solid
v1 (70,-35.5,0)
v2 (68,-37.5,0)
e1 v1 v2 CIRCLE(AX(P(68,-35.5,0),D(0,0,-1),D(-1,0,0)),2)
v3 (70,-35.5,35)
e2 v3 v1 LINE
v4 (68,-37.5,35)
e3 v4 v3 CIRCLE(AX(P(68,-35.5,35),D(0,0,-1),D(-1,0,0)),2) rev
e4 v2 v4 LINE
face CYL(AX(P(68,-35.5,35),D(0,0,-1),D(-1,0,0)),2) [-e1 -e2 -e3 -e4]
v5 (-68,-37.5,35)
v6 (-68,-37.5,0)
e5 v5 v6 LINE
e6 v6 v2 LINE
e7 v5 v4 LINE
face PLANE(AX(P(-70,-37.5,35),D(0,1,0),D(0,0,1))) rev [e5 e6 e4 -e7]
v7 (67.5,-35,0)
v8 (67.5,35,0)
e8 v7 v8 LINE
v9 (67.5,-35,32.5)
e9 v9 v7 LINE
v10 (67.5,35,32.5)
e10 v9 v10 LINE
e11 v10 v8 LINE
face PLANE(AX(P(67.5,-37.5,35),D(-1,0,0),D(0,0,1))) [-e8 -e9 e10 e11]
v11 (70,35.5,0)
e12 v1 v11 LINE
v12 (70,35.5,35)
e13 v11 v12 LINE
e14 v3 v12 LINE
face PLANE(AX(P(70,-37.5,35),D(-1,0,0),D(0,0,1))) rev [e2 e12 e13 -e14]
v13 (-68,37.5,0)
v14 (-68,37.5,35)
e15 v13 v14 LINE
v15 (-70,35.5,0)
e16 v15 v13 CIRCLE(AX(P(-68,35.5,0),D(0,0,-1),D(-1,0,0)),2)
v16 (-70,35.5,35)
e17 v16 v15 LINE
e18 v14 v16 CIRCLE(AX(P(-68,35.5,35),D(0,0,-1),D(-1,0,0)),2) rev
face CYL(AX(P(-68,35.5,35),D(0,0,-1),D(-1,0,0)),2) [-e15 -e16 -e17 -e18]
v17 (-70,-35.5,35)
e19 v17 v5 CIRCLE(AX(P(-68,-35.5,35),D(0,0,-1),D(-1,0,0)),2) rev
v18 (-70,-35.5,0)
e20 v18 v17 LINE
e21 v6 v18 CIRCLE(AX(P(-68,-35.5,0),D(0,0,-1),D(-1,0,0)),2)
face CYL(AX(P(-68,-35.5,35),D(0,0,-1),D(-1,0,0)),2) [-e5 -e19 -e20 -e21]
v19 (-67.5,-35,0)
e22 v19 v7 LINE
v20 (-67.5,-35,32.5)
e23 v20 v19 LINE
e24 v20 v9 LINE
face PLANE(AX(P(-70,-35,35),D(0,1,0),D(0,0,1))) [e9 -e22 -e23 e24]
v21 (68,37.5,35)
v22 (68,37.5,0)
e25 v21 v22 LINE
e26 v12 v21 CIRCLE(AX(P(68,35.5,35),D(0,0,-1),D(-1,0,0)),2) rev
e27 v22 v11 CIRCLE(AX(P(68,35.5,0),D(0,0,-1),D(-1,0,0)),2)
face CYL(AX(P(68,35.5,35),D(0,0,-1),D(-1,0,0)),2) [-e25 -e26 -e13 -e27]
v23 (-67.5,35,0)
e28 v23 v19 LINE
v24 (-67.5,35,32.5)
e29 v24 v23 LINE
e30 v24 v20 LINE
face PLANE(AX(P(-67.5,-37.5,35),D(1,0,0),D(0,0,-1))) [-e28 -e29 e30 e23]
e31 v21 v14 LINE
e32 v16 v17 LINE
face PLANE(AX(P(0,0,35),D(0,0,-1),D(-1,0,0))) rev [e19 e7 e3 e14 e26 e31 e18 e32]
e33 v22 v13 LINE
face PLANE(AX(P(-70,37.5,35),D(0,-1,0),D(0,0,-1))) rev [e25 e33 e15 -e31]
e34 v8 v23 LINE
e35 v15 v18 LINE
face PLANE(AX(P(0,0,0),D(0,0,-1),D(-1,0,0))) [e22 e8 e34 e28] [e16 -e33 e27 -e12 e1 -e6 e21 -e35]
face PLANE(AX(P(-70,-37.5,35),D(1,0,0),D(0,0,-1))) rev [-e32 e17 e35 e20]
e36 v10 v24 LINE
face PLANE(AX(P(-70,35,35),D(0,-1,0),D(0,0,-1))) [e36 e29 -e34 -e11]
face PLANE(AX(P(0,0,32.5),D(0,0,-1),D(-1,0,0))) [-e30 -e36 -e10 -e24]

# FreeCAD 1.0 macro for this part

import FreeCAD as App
import Part
import Sketcher


def edges_at(feature, points):
    """Names of the edges that pass closest to the given points."""
    edges = feature.Shape.Edges
    near = lambda p: min(range(len(edges)), key=lambda i: edges[i].distToShape(Part.Vertex(*p))[0])
    return sorted({f"Edge{near(p) + 1}" for p in points})


def faces_at(feature, points):
    """Names of the faces that lie closest to the given points."""
    faces = feature.Shape.Faces
    near = lambda p: min(range(len(faces)), key=lambda i: faces[i].distToShape(Part.Vertex(*p))[0])
    return sorted({f"Face{near(p) + 1}" for p in points})

doc = App.newDocument("Part")
body = doc.addObject("PartDesign::Body", "Body")

sketch1 = doc.addObject("Sketcher::SketchObject", "Sketch")
body.addObject(sketch1)
sketch1.AttachmentSupport = (doc.XY_Plane, [""])
sketch1.MapMode = "FlatFace"
sketch1.addGeometry([
    Part.LineSegment(App.Vector(-70, 38, 0), App.Vector(-70, -38, 0)),
    Part.LineSegment(App.Vector(-70, -38, 0), App.Vector(70, -38, 0)),
    Part.LineSegment(App.Vector(70, -38, 0), App.Vector(70, 38, 0)),
    Part.LineSegment(App.Vector(70, 38, 0), App.Vector(-70, 38, 0)),
], False)
sketch1.addConstraint([
    Sketcher.Constraint("Coincident", 0, 2, 1, 1),
    Sketcher.Constraint("Coincident", 1, 2, 2, 1),
    Sketcher.Constraint("Coincident", 2, 2, 3, 1),
    Sketcher.Constraint("Coincident", 3, 2, 0, 1),
    Sketcher.Constraint("Vertical", 0),
    Sketcher.Constraint("Horizontal", 1),
    Sketcher.Constraint("Vertical", 2),
    Sketcher.Constraint("Horizontal", 3),
    Sketcher.Constraint("Symmetric", 0, 2, 2, 2, -1, 1),
    Sketcher.Constraint("DistanceX", 1, 1, 1, 2, 140.0),
    Sketcher.Constraint("DistanceY", 0, 2, 0, 1, 75.0),
])
pad1 = doc.addObject("PartDesign::Pad", "Pad")
body.addObject(pad1)
pad1.Profile = sketch1
pad1.Length = 35
doc.recompute()

thickness = doc.addObject("PartDesign::Thickness", "Thickness")
body.addObject(thickness)
thickness.Base = (pad1, faces_at(pad1, [(0, 0, 0)]))
thickness.Value = 2.5
thickness.Reversed = True
thickness.Join = "Intersection"
doc.recompute()

fillet = doc.addObject("PartDesign::Fillet", "Fillet")
body.addObject(fillet)
fillet.Base = (thickness, edges_at(thickness, [
    (70, -37.5, 17.5),
    (-70, -37.5, 17.5),
    (-70, 37.5, 17.5),
    (70, 37.5, 17.5),
]))
fillet.Radius = 2

doc.recompute()
